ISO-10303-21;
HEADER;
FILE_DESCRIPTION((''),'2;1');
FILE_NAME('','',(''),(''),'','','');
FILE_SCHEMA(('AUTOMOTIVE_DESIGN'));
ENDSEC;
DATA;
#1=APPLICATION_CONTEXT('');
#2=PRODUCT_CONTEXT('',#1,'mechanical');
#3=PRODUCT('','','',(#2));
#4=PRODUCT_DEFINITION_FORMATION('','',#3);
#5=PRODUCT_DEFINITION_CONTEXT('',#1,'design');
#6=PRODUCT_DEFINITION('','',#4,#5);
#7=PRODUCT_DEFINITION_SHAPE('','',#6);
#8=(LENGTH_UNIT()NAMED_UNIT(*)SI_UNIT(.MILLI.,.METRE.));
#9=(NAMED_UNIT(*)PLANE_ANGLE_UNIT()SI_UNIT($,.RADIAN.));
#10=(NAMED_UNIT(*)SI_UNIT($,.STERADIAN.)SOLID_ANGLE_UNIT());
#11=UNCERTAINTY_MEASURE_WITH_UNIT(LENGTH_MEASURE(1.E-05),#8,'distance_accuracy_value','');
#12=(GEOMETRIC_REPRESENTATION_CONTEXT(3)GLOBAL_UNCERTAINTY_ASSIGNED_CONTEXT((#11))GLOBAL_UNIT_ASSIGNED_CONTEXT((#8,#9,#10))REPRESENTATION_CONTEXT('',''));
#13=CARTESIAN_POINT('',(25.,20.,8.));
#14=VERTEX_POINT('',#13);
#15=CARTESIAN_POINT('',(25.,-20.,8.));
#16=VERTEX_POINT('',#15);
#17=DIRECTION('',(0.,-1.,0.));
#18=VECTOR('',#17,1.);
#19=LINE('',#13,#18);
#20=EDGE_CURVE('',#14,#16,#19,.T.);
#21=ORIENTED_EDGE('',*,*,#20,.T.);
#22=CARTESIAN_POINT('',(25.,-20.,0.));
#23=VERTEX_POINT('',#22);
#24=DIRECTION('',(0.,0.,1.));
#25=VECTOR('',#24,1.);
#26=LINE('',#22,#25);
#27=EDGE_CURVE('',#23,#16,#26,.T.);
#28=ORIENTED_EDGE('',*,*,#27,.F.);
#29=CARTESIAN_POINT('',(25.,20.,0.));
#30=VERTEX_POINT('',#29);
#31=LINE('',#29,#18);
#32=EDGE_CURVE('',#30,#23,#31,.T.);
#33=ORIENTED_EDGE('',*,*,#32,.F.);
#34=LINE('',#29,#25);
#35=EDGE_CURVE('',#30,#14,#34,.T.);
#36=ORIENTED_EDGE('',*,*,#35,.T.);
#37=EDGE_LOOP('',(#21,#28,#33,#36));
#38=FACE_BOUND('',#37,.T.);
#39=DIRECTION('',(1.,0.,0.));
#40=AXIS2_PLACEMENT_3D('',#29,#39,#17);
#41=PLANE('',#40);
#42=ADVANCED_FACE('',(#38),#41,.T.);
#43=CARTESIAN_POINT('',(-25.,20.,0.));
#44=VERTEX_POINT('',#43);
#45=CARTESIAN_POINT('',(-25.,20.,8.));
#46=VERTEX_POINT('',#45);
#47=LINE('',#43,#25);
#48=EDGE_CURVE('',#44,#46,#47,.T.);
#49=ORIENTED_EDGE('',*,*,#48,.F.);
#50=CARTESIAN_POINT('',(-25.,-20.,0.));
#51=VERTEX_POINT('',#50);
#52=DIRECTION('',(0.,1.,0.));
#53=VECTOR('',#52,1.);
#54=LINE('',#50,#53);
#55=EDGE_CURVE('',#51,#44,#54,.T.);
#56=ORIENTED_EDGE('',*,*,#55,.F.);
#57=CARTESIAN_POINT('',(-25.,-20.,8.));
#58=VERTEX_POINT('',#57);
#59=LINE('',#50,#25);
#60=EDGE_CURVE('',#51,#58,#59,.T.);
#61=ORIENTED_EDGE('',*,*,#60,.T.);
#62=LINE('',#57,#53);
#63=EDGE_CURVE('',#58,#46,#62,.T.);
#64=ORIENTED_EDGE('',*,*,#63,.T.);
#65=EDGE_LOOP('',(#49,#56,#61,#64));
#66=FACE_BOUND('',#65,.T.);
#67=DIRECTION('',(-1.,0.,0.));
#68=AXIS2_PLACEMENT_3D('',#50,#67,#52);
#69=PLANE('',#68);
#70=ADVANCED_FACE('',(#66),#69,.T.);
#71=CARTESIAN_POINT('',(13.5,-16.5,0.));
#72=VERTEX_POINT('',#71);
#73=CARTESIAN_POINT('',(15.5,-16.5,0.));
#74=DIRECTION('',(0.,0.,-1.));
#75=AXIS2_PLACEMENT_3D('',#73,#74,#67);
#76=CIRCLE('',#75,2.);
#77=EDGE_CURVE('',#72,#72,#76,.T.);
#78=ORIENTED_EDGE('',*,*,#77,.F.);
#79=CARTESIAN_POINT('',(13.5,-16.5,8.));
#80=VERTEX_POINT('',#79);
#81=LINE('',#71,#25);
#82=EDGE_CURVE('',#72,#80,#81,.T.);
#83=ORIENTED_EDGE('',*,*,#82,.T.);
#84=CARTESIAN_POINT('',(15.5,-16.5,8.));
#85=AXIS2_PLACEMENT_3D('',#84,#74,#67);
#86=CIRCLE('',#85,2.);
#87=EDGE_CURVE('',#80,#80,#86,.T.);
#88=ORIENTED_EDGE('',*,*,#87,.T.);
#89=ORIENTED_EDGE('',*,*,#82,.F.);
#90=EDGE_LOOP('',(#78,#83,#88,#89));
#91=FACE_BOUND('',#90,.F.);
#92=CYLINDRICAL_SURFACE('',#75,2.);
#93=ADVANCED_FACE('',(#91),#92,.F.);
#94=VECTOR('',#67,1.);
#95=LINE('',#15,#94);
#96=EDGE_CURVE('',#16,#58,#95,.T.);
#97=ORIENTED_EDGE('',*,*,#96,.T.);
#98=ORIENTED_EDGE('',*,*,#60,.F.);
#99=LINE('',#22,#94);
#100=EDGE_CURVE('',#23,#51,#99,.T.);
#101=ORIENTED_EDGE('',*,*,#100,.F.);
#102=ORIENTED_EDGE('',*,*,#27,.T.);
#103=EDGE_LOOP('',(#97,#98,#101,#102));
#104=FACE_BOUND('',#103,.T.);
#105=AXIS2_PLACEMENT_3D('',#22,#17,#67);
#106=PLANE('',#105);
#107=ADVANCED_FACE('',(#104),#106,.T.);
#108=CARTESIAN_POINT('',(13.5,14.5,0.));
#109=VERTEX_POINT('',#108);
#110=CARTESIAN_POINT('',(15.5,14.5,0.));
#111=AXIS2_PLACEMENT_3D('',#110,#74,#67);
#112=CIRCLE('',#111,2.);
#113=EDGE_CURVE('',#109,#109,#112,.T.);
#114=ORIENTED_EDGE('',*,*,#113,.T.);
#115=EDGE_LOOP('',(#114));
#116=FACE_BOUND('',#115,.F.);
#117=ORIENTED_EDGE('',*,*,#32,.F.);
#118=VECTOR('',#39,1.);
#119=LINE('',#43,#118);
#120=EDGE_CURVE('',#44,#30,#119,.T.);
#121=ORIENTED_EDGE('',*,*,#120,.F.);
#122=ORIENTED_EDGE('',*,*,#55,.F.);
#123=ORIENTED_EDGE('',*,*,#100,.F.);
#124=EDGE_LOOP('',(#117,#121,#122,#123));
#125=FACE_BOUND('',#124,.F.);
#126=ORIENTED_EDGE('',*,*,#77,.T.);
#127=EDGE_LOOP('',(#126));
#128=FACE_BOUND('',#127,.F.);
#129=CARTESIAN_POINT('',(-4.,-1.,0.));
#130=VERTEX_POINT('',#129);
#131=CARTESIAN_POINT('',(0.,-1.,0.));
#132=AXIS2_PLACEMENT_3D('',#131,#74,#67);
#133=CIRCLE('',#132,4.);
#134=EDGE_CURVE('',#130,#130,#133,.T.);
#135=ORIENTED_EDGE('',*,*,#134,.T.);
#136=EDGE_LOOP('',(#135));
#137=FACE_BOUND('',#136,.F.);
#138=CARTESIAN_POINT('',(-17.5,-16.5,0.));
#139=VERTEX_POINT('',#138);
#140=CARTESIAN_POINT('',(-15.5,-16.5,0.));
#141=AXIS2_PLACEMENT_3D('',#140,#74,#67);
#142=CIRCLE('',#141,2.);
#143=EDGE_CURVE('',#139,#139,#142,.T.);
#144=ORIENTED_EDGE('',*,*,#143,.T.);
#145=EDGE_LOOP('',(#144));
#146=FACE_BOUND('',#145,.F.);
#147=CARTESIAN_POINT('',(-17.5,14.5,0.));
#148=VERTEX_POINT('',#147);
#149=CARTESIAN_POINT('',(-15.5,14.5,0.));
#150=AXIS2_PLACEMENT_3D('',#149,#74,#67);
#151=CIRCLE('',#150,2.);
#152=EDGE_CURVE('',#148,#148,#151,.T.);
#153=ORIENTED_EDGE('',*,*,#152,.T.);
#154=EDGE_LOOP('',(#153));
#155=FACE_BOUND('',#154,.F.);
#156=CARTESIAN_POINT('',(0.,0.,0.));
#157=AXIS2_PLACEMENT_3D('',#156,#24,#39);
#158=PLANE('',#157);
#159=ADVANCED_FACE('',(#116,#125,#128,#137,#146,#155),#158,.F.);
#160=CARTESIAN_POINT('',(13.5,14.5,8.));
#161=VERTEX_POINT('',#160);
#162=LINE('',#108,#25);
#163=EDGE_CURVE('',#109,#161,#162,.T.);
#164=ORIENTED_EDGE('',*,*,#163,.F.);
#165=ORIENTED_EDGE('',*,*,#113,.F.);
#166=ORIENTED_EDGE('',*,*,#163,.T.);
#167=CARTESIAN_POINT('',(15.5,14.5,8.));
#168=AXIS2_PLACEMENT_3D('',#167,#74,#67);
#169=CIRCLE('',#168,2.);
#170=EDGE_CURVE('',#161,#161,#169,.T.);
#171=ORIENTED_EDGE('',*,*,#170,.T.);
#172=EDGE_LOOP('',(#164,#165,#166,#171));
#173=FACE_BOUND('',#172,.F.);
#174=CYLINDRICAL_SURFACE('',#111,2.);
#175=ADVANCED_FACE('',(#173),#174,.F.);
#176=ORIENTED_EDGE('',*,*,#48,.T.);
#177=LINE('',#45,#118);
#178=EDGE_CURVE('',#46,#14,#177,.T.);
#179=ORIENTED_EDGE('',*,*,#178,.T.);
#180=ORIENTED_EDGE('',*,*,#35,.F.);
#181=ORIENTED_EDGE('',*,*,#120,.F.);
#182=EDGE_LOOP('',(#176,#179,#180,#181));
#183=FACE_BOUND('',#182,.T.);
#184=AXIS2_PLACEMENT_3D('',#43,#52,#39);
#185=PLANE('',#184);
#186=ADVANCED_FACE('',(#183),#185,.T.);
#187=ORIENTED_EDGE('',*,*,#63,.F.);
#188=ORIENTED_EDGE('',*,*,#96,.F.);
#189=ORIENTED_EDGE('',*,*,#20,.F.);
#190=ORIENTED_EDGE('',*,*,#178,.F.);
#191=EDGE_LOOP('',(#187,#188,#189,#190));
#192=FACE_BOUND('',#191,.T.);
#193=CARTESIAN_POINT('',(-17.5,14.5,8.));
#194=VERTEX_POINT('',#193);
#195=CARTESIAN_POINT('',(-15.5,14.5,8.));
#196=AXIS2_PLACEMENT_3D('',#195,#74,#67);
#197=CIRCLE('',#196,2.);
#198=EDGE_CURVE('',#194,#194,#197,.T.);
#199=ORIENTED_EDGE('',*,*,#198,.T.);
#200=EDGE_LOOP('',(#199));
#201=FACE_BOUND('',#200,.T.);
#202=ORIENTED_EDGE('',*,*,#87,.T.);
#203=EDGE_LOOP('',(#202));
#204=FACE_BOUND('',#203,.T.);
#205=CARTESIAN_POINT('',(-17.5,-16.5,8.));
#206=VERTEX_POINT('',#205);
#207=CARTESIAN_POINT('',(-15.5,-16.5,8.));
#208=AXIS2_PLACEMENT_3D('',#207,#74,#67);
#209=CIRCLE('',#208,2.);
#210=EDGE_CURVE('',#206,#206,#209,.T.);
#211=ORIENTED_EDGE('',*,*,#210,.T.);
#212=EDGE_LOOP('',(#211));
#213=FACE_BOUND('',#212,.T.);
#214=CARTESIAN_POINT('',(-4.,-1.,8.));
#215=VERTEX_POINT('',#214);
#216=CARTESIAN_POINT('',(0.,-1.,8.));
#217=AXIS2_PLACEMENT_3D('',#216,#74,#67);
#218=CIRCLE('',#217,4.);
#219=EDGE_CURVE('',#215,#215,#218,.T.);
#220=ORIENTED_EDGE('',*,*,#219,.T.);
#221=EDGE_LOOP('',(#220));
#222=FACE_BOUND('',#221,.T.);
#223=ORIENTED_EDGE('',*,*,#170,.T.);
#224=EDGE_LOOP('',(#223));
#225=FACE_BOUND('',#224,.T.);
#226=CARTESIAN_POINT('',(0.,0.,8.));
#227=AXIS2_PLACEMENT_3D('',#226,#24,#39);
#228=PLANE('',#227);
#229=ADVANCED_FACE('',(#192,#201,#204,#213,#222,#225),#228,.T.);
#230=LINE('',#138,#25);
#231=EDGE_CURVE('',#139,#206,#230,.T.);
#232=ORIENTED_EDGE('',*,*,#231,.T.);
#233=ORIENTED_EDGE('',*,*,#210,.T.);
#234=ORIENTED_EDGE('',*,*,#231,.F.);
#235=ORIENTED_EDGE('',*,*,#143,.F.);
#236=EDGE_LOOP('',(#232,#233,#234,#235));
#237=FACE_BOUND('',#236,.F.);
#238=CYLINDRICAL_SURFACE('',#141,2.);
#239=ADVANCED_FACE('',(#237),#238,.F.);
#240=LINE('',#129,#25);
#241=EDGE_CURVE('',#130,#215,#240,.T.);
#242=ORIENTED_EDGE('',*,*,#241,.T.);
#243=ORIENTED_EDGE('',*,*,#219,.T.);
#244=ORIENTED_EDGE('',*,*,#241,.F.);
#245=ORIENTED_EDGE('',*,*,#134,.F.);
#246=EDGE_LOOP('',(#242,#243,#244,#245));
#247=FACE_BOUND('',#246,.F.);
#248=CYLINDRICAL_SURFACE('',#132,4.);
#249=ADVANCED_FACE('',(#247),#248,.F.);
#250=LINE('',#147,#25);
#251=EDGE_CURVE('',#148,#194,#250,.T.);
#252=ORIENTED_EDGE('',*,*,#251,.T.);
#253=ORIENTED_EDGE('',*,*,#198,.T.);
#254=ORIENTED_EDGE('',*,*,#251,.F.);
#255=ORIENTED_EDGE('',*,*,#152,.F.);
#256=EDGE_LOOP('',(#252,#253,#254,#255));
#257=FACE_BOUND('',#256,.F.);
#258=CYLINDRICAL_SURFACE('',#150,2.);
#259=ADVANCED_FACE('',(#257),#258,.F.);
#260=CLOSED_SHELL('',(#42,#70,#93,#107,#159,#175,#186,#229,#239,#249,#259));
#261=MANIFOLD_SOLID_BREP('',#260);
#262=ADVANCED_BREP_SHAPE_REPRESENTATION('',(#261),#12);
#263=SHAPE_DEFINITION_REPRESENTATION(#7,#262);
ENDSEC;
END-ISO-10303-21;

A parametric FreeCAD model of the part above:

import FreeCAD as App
import Part
import Sketcher


def add_polygon(sketch, points):
    """Adds a closed chain of lines whose ends are joined by coincident constraints."""
    first, n = sketch.GeometryCount, len(points)
    for a, b in zip(points, points[1:] + points[:1]):
        sketch.addGeometry(Part.LineSegment(App.Vector(*a, 0), App.Vector(*b, 0)), False)
    for i in range(n):
        sketch.addConstraint(Sketcher.Constraint("Coincident", first + i, 2, first + (i + 1) % n, 1))

doc = App.newDocument("Part")
body = doc.addObject("PartDesign::Body", "Body")

# Sketch on XY plane
sketch1 = body.newObject("Sketcher::SketchObject", "Sketch")
sketch1.AttachmentSupport = (doc.getObject("XY_Plane"), [""])
sketch1.MapMode = "FlatFace"
add_polygon(sketch1, [(25, 20), (-25, 20), (-25, -20), (25, -20)])  # lines 0-3
sketch1.addConstraint([
    Sketcher.Constraint("Horizontal", 0),
    Sketcher.Constraint("Vertical", 1),
    Sketcher.Constraint("Horizontal", 2),
    Sketcher.Constraint("Vertical", 3),
    Sketcher.Constraint("Symmetric", 0, 2, 2, 2, -1, 1),
    Sketcher.Constraint("DistanceX", 0, 2, 0, 1, 50.0),
    Sketcher.Constraint("DistanceY", 1, 2, 1, 1, 40.0),
])
pad1 = body.newObject("PartDesign::Pad", "Pad")
pad1.Profile = sketch1
pad1.Length = 8

# Sketch on XY plane
sketch2 = body.newObject("Sketcher::SketchObject", "Sketch001")
sketch2.AttachmentSupport = (doc.getObject("XY_Plane"), [""])
sketch2.MapMode = "FlatFace"
sketch2.addGeometry([
    Part.Circle(App.Vector(15.5, -16.5, 0), App.Vector(0, 0, 1), 2),  # 0
    Part.Circle(App.Vector(-15.5, -16.5, 0), App.Vector(0, 0, 1), 2),  # 1
    Part.Circle(App.Vector(15.5, 14.5, 0), App.Vector(0, 0, 1), 2),  # 2
    Part.Circle(App.Vector(-15.5, 14.5, 0), App.Vector(0, 0, 1), 2),  # 3
    Part.Circle(App.Vector(0, -1, 0), App.Vector(0, 0, 1), 4),  # 4
], False)
sketch2.addConstraint([
    Sketcher.Constraint("Equal", 0, 1),
    Sketcher.Constraint("Equal", 1, 2),
    Sketcher.Constraint("Equal", 2, 3),
    Sketcher.Constraint("Symmetric", 0, 3, 1, 3, -2),
    Sketcher.Constraint("Symmetric", 2, 3, 3, 3, -2),
    Sketcher.Constraint("PointOnObject", 4, 3, -2),
    Sketcher.Constraint("Vertical", 0, 3, 2, 3),
    Sketcher.Constraint("Diameter", 0, 4.0),
    Sketcher.Constraint("Diameter", 4, 8.0),
    Sketcher.Constraint("DistanceY", 4, 3, -1, 1, 1.0),
    Sketcher.Constraint("DistanceX", 1, 3, 0, 3, 31.0),
    Sketcher.Constraint("DistanceY", 0, 3, 2, 3, 31.0),
    Sketcher.Constraint("DistanceY", 0, 3, -1, 1, 16.5),
])
pocket1 = body.newObject("PartDesign::Pocket", "Pocket")
pocket1.Profile = sketch2
pocket1.Type = "ThroughAll"
pocket1.Reversed = True

doc.recompute()
